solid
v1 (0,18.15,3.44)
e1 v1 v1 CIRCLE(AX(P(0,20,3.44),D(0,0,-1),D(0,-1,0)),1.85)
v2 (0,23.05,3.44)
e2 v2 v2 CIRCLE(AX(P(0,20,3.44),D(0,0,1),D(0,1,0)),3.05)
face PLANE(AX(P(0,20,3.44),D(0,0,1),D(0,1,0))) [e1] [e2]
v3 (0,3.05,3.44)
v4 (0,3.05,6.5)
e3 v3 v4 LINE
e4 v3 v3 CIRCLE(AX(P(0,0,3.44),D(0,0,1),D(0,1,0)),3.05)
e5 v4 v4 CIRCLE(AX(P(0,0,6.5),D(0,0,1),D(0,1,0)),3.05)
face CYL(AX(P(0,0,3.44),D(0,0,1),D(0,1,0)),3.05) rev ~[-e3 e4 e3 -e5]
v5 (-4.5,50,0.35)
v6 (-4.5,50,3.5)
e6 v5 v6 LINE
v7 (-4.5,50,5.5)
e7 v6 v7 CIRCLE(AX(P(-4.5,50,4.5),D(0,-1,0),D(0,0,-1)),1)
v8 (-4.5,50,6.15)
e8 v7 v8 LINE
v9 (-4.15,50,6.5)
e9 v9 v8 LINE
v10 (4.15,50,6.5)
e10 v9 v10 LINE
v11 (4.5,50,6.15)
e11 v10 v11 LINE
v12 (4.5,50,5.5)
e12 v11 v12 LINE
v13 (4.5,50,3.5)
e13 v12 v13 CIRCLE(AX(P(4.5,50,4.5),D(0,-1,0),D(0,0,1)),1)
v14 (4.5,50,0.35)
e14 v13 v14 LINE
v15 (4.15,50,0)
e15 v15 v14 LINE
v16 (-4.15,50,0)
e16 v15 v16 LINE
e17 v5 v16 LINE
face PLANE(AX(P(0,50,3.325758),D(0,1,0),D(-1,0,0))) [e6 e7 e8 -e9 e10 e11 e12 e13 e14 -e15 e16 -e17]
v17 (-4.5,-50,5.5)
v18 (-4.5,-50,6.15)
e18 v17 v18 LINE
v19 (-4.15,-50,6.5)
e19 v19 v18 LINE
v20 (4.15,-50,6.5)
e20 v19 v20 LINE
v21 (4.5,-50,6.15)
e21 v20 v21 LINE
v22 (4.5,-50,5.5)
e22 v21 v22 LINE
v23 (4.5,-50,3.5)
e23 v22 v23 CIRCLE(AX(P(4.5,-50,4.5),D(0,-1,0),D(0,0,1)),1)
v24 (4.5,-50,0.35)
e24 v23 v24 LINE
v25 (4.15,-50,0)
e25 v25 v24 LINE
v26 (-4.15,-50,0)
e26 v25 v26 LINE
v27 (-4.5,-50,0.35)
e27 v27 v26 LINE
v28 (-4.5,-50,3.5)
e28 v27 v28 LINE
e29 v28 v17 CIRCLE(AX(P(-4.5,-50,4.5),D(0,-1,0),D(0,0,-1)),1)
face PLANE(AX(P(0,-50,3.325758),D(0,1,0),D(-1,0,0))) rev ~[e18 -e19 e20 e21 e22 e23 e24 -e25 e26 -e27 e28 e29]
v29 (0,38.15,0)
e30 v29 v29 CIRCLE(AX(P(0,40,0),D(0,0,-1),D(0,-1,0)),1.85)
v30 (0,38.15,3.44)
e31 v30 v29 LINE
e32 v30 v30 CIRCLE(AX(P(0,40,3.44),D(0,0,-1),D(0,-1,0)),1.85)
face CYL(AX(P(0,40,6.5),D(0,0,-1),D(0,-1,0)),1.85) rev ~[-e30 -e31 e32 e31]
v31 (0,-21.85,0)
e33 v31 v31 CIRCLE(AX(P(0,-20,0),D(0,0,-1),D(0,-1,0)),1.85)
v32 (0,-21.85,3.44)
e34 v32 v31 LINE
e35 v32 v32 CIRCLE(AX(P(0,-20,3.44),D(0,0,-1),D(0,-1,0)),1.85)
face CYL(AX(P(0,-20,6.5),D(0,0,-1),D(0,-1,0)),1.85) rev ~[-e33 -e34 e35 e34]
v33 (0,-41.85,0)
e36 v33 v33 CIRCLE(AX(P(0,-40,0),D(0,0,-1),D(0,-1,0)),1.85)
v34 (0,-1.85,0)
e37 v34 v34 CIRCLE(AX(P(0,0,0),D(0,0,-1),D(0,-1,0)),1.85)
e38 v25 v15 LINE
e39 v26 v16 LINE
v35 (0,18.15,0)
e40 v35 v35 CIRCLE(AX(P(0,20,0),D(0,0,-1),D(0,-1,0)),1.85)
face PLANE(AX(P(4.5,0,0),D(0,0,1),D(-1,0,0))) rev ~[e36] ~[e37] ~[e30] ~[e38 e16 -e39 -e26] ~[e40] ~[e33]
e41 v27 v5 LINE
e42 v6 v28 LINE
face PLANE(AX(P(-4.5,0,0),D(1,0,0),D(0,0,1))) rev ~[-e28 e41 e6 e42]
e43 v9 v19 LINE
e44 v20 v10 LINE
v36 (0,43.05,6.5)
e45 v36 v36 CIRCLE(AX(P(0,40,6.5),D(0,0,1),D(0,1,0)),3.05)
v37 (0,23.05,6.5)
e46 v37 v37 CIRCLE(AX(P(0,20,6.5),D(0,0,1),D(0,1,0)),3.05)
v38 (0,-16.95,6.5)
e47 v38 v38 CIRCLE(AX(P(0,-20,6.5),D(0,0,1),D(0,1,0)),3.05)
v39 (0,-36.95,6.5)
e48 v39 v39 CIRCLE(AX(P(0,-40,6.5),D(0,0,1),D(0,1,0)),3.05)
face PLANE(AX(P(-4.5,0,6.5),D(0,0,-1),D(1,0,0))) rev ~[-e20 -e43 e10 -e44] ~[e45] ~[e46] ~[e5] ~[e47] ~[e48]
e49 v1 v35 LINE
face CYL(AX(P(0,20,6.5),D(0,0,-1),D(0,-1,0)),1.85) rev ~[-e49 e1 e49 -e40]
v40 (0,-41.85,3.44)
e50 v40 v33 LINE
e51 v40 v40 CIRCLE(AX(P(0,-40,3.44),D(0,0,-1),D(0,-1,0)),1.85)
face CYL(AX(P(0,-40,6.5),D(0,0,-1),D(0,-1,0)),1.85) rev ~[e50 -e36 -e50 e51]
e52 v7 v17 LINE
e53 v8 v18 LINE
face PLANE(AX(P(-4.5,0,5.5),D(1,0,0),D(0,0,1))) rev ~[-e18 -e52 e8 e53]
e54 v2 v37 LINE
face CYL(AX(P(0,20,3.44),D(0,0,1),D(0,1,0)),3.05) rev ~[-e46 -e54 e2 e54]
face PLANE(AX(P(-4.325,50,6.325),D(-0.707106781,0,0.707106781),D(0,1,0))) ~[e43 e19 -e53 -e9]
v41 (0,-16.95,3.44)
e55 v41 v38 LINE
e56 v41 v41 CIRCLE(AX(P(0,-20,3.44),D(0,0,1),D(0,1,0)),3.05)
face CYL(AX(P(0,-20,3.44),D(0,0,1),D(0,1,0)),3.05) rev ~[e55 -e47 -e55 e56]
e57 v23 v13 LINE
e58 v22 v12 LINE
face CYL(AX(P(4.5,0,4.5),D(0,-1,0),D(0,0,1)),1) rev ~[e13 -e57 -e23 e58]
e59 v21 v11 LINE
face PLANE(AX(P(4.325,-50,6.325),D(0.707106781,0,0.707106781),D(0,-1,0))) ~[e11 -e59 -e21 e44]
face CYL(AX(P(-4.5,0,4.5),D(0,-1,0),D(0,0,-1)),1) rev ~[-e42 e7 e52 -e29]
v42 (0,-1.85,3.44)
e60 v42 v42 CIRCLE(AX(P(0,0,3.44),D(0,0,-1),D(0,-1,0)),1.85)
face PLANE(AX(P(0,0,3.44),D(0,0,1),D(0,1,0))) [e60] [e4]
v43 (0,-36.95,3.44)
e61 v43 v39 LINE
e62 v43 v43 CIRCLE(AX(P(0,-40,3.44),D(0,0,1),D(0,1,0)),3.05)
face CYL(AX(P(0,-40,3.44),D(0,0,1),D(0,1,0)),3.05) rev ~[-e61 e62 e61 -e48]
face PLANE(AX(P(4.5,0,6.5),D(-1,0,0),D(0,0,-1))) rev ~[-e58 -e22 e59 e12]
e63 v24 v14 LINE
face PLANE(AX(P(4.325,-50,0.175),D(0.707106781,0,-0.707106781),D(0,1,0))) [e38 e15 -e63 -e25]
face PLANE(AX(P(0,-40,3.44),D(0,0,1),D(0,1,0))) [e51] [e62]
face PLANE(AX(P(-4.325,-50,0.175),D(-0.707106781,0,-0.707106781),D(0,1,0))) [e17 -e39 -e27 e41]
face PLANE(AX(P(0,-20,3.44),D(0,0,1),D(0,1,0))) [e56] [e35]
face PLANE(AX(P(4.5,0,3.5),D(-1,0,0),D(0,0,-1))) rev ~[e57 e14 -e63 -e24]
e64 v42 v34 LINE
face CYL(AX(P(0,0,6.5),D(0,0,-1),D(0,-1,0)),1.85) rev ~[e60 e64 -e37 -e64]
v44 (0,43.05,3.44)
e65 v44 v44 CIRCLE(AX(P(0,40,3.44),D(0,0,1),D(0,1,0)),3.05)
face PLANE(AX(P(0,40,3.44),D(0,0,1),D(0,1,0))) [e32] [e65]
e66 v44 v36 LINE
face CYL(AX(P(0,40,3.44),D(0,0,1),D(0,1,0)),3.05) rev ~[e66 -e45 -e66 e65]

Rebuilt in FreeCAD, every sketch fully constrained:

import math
import FreeCAD as App
import Part
import Sketcher

V = App.Vector


def edges_at(feature, points):
    """Names of the edges that pass closest to the given points."""
    edges = feature.Shape.Edges
    near = lambda p: min(range(len(edges)), key=lambda i: edges[i].distToShape(Part.Vertex(*p))[0])
    return sorted({f"Edge{near(p) + 1}" for p in points})

doc = App.newDocument("Part")
params = doc.addObject("Spreadsheet::Sheet", "Params")
for row, (alias, value) in enumerate([
    ("sketch1_radius", "1 mm"),
    ("sketch1_width", "9 mm"),
    ("sketch1_height", "1 mm"),
    ("sketch1_height2", "3.5 mm"),
    ("pad1_length", "100 mm"),
    ("chamfer_size", "0.35 mm"),
    ("sketch2_diameter", "3.7 mm"),
    ("hole_diameter", "3.7 mm"),
    ("hole_cbore_diameter", "6.1 mm"),
    ("hole_cbore_depth", "3.06 mm"),
], start=1):
    params.set(f"A{row}", alias)
    params.set(f"B{row}", "=" + value)
    params.setAlias(f"B{row}", alias)

body = doc.addObject("PartDesign::Body", "Body")

# Sketch on XZ plane
sketch1 = body.newObject("Sketcher::SketchObject", "Sketch")
sketch1.AttachmentSupport = (doc.getObject("XZ_Plane"), [""])
sketch1.MapMode = "FlatFace"
sketch1.addGeometry([
    Part.LineSegment(V(4.5, 6.5, 0), V(-4.5, 6.5, 0)),  # 0
    Part.LineSegment(V(-4.5, 6.5, 0), V(-4.5, 5.5, 0)),  # 1
    Part.ArcOfCircle(Part.Circle(V(-4.5, 4.5, 0), V(0, 0, 1), 1), math.radians(-90), math.radians(90)),  # 2
    Part.LineSegment(V(-4.5, 3.5, 0), V(-4.5, 0, 0)),  # 3
    Part.LineSegment(V(-4.5, 0, 0), V(4.5, 0, 0)),  # 4
    Part.LineSegment(V(4.5, 0, 0), V(4.5, 3.5, 0)),  # 5
    Part.ArcOfCircle(Part.Circle(V(4.5, 4.5, 0), V(0, 0, 1), 1), math.radians(90), math.radians(270)),  # 6
    Part.LineSegment(V(4.5, 5.5, 0), V(4.5, 6.5, 0)),  # 7
], False)
sketch1.addConstraint([
    Sketcher.Constraint("Coincident", 0, 2, 1, 1),
    Sketcher.Constraint("Coincident", 1, 2, 2, 2),
    Sketcher.Constraint("Coincident", 2, 1, 3, 1),
    Sketcher.Constraint("Coincident", 3, 2, 4, 1),
    Sketcher.Constraint("Coincident", 4, 2, 5, 1),
    Sketcher.Constraint("Coincident", 5, 2, 6, 2),
    Sketcher.Constraint("Coincident", 6, 1, 7, 1),
    Sketcher.Constraint("Coincident", 7, 2, 0, 1),
    Sketcher.Constraint("Horizontal", 0),
    Sketcher.Constraint("Vertical", 1),
    Sketcher.Constraint("Vertical", 3),
    Sketcher.Constraint("Horizontal", 4),
    Sketcher.Constraint("Vertical", 5),
    Sketcher.Constraint("Vertical", 7),
    Sketcher.Constraint("Equal", 2, 6),
    Sketcher.Constraint("Symmetric", 3, 2, 4, 2, -1, 1),
    Sketcher.Constraint("Symmetric", 2, 3, 6, 3, -2),
    Sketcher.Constraint("Vertical", 2, 3, 0, 2),
    Sketcher.Constraint("Vertical", 1, 2, 2, 1),
    Sketcher.Constraint("Vertical", 5, 2, 6, 1),
    Sketcher.Constraint("Radius", 2, 1.0),
    Sketcher.Constraint("DistanceX", 0, 2, 0, 1, 9.0),
    Sketcher.Constraint("DistanceY", 1, 2, 1, 1, 1.0),
    Sketcher.Constraint("DistanceY", 3, 2, 3, 1, 3.5),
])
sketch1.setExpression("Constraints[20]", "Params.sketch1_radius")
sketch1.setExpression("Constraints[21]", "Params.sketch1_width")
sketch1.setExpression("Constraints[22]", "Params.sketch1_height")
sketch1.setExpression("Constraints[23]", "Params.sketch1_height2")
pad1 = body.newObject("PartDesign::Pad", "Pad")
pad1.Profile = sketch1
pad1.setExpression("Length", "Params.pad1_length")
pad1.Midplane = True
doc.recompute()

chamfer = body.newObject("PartDesign::Chamfer", "Chamfer")
chamfer.Base = (pad1, edges_at(pad1, [
    (4.5, 0, 6.5),
    (4.5, 0, 0),
    (-4.5, 0, 0),
    (-4.5, 0, 6.5),
]))
chamfer.setExpression("Size", "Params.chamfer_size")

# Sketch on XY plane
sketch2 = body.newObject("Sketcher::SketchObject", "Sketch001")
sketch2.AttachmentSupport = (doc.getObject("XY_Plane"), [""])
sketch2.MapMode = "FlatFace"
sketch2.AttachmentOffset = App.Placement(V(0, 0, 6.5), App.Rotation())
sketch2.addGeometry([
    Part.Circle(V(0, 0, 0), V(0, 0, 1), 1.85),  # 0
    Part.Circle(V(0, -20, 0), V(0, 0, 1), 1.85),  # 1
    Part.Circle(V(0, -40, 0), V(0, 0, 1), 1.85),  # 2
    Part.Circle(V(0, -60, 0), V(0, 0, 1), 1.85),  # 3
    Part.Circle(V(0, -80, 0), V(0, 0, 1), 1.85),  # 4
    Part.Circle(V(0, -100, 0), V(0, 0, 1), 1.85),  # 5
    Part.Circle(V(0, -120, 0), V(0, 0, 1), 1.85),  # 6
    Part.Circle(V(0, -140, 0), V(0, 0, 1), 1.85),  # 7
    Part.Circle(V(0, -160, 0), V(0, 0, 1), 1.85),  # 8
    Part.Circle(V(0, -180, 0), V(0, 0, 1), 1.85),  # 9
    Part.Circle(V(0, 20, 0), V(0, 0, 1), 1.85),  # 10
    Part.Circle(V(0, 40, 0), V(0, 0, 1), 1.85),  # 11
    Part.Circle(V(0, 60, 0), V(0, 0, 1), 1.85),  # 12
    Part.Circle(V(0, 80, 0), V(0, 0, 1), 1.85),  # 13
    Part.Circle(V(0, 100, 0), V(0, 0, 1), 1.85),  # 14
    Part.Circle(V(0, 120, 0), V(0, 0, 1), 1.85),  # 15
    Part.Circle(V(0, 140, 0), V(0, 0, 1), 1.85),  # 16
    Part.Circle(V(0, 160, 0), V(0, 0, 1), 1.85),  # 17
    Part.Circle(V(0, 180, 0), V(0, 0, 1), 1.85),  # 18
], False)
sketch2.addConstraint([
    Sketcher.Constraint("Coincident", 0, 3, -1, 1),
    Sketcher.Constraint("Equal", 0, 1),
    Sketcher.Constraint("Equal", 1, 2),
    Sketcher.Constraint("Equal", 2, 3),
    Sketcher.Constraint("Equal", 3, 4),
    Sketcher.Constraint("Equal", 4, 5),
    Sketcher.Constraint("Equal", 5, 6),
    Sketcher.Constraint("Equal", 6, 7),
    Sketcher.Constraint("Equal", 7, 8),
    Sketcher.Constraint("Equal", 8, 9),
    Sketcher.Constraint("Equal", 9, 10),
    Sketcher.Constraint("Equal", 10, 11),
    Sketcher.Constraint("Equal", 11, 12),
    Sketcher.Constraint("Equal", 12, 13),
    Sketcher.Constraint("Equal", 13, 14),
    Sketcher.Constraint("Equal", 14, 15),
    Sketcher.Constraint("Equal", 15, 16),
    Sketcher.Constraint("Equal", 16, 17),
    Sketcher.Constraint("Equal", 17, 18),
    Sketcher.Constraint("Symmetric", 1, 3, 10, 3, -1, 1),
    Sketcher.Constraint("Symmetric", 2, 3, 11, 3, -1, 1),
    Sketcher.Constraint("Symmetric", 3, 3, 12, 3, -1, 1),
    Sketcher.Constraint("Symmetric", 4, 3, 13, 3, -1, 1),
    Sketcher.Constraint("Symmetric", 5, 3, 14, 3, -1, 1),
    Sketcher.Constraint("Symmetric", 6, 3, 15, 3, -1, 1),
    Sketcher.Constraint("Symmetric", 7, 3, 16, 3, -1, 1),
    Sketcher.Constraint("Symmetric", 8, 3, 17, 3, -1, 1),
    Sketcher.Constraint("Symmetric", 9, 3, 18, 3, -1, 1),
    Sketcher.Constraint("PointOnObject", 1, 3, -2),
    Sketcher.Constraint("PointOnObject", 2, 3, -2),
    Sketcher.Constraint("PointOnObject", 3, 3, -2),
    Sketcher.Constraint("PointOnObject", 4, 3, -2),
    Sketcher.Constraint("PointOnObject", 5, 3, -2),
    Sketcher.Constraint("PointOnObject", 6, 3, -2),
    Sketcher.Constraint("PointOnObject", 7, 3, -2),
    Sketcher.Constraint("PointOnObject", 8, 3, -2),
    Sketcher.Constraint("PointOnObject", 9, 3, -2),
    Sketcher.Constraint("Diameter", 0, 3.7),
    Sketcher.Constraint("DistanceY", 1, 3, -1, 1, 20.0),
    Sketcher.Constraint("DistanceY", 2, 3, -1, 1, 40.0),
    Sketcher.Constraint("DistanceY", 3, 3, -1, 1, 60.0),
    Sketcher.Constraint("DistanceY", 4, 3, -1, 1, 80.0),
    Sketcher.Constraint("DistanceY", 5, 3, -1, 1, 100.0),
    Sketcher.Constraint("DistanceY", 6, 3, -1, 1, 120.0),
    Sketcher.Constraint("DistanceY", 7, 3, -1, 1, 140.0),
    Sketcher.Constraint("DistanceY", 8, 3, -1, 1, 160.0),
    Sketcher.Constraint("DistanceY", 9, 3, -1, 1, 180.0),
])
sketch2.setExpression("Constraints[37]", "Params.sketch2_diameter")
doc.recompute()
hole = body.newObject("PartDesign::Hole", "Hole")
hole.Profile = sketch2
hole.ThreadType = "None"
hole.setExpression("Diameter", "Params.hole_diameter")
hole.DepthType = "ThroughAll"
hole.HoleCutType = "Counterbore"
hole.setExpression("HoleCutDiameter", "Params.hole_cbore_diameter")
hole.setExpression("HoleCutDepth", "Params.hole_cbore_depth")

doc.recompute()
